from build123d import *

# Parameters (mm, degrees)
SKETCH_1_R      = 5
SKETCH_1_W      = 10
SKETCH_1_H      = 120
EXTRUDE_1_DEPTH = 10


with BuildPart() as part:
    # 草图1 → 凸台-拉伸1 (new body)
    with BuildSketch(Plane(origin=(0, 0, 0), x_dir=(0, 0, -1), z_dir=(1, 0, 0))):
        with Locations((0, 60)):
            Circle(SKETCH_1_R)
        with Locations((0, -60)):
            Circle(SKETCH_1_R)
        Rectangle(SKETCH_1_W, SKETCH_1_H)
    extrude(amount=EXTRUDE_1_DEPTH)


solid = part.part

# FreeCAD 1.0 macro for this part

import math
import FreeCAD as App
import Part
import Sketcher
Q = App.Units.Quantity

doc = App.newDocument("Part")
body = doc.addObject("PartDesign::Body", "Body")

# Sketch on YZ plane
sketch1 = body.newObject("Sketcher::SketchObject", "Sketch")
sketch1.AttachmentSupport = (doc.getObject("YZ_Plane"), [""])
sketch1.MapMode = "FlatFace"
sketch1.addGeometry([
    Part.ArcOfCircle(Part.Circle(App.Vector(60, 0, 0), App.Vector(0, 0, 1), 5), math.radians(-90), math.radians(90)),
    Part.LineSegment(App.Vector(60, 5, 0), App.Vector(-60, 5, 0)),
    Part.ArcOfCircle(Part.Circle(App.Vector(-60, 0, 0), App.Vector(0, 0, 1), 5), math.radians(90), math.radians(270)),
    Part.LineSegment(App.Vector(-60, -5, 0), App.Vector(60, -5, 0)),
], False)
sketch1.addConstraint([
    Sketcher.Constraint("Tangent", 0, 2, 1, 1),
    Sketcher.Constraint("Tangent", 1, 2, 2, 1),
    Sketcher.Constraint("Tangent", 2, 2, 3, 1),
    Sketcher.Constraint("Tangent", 3, 2, 0, 1),
    Sketcher.Constraint("Horizontal", 1),
    Sketcher.Constraint("Horizontal", 3),
    Sketcher.Constraint("Symmetric", 0, 3, 2, 3, -1, 1),
    Sketcher.Constraint("Radius", 0, Q("5 mm")),
    Sketcher.Constraint("DistanceX", 1, 2, 1, 1, Q("120 mm")),
])
pad1 = body.newObject("PartDesign::Pad", "Pad")
pad1.Profile = sketch1
pad1.Length = 10

doc.recompute()
